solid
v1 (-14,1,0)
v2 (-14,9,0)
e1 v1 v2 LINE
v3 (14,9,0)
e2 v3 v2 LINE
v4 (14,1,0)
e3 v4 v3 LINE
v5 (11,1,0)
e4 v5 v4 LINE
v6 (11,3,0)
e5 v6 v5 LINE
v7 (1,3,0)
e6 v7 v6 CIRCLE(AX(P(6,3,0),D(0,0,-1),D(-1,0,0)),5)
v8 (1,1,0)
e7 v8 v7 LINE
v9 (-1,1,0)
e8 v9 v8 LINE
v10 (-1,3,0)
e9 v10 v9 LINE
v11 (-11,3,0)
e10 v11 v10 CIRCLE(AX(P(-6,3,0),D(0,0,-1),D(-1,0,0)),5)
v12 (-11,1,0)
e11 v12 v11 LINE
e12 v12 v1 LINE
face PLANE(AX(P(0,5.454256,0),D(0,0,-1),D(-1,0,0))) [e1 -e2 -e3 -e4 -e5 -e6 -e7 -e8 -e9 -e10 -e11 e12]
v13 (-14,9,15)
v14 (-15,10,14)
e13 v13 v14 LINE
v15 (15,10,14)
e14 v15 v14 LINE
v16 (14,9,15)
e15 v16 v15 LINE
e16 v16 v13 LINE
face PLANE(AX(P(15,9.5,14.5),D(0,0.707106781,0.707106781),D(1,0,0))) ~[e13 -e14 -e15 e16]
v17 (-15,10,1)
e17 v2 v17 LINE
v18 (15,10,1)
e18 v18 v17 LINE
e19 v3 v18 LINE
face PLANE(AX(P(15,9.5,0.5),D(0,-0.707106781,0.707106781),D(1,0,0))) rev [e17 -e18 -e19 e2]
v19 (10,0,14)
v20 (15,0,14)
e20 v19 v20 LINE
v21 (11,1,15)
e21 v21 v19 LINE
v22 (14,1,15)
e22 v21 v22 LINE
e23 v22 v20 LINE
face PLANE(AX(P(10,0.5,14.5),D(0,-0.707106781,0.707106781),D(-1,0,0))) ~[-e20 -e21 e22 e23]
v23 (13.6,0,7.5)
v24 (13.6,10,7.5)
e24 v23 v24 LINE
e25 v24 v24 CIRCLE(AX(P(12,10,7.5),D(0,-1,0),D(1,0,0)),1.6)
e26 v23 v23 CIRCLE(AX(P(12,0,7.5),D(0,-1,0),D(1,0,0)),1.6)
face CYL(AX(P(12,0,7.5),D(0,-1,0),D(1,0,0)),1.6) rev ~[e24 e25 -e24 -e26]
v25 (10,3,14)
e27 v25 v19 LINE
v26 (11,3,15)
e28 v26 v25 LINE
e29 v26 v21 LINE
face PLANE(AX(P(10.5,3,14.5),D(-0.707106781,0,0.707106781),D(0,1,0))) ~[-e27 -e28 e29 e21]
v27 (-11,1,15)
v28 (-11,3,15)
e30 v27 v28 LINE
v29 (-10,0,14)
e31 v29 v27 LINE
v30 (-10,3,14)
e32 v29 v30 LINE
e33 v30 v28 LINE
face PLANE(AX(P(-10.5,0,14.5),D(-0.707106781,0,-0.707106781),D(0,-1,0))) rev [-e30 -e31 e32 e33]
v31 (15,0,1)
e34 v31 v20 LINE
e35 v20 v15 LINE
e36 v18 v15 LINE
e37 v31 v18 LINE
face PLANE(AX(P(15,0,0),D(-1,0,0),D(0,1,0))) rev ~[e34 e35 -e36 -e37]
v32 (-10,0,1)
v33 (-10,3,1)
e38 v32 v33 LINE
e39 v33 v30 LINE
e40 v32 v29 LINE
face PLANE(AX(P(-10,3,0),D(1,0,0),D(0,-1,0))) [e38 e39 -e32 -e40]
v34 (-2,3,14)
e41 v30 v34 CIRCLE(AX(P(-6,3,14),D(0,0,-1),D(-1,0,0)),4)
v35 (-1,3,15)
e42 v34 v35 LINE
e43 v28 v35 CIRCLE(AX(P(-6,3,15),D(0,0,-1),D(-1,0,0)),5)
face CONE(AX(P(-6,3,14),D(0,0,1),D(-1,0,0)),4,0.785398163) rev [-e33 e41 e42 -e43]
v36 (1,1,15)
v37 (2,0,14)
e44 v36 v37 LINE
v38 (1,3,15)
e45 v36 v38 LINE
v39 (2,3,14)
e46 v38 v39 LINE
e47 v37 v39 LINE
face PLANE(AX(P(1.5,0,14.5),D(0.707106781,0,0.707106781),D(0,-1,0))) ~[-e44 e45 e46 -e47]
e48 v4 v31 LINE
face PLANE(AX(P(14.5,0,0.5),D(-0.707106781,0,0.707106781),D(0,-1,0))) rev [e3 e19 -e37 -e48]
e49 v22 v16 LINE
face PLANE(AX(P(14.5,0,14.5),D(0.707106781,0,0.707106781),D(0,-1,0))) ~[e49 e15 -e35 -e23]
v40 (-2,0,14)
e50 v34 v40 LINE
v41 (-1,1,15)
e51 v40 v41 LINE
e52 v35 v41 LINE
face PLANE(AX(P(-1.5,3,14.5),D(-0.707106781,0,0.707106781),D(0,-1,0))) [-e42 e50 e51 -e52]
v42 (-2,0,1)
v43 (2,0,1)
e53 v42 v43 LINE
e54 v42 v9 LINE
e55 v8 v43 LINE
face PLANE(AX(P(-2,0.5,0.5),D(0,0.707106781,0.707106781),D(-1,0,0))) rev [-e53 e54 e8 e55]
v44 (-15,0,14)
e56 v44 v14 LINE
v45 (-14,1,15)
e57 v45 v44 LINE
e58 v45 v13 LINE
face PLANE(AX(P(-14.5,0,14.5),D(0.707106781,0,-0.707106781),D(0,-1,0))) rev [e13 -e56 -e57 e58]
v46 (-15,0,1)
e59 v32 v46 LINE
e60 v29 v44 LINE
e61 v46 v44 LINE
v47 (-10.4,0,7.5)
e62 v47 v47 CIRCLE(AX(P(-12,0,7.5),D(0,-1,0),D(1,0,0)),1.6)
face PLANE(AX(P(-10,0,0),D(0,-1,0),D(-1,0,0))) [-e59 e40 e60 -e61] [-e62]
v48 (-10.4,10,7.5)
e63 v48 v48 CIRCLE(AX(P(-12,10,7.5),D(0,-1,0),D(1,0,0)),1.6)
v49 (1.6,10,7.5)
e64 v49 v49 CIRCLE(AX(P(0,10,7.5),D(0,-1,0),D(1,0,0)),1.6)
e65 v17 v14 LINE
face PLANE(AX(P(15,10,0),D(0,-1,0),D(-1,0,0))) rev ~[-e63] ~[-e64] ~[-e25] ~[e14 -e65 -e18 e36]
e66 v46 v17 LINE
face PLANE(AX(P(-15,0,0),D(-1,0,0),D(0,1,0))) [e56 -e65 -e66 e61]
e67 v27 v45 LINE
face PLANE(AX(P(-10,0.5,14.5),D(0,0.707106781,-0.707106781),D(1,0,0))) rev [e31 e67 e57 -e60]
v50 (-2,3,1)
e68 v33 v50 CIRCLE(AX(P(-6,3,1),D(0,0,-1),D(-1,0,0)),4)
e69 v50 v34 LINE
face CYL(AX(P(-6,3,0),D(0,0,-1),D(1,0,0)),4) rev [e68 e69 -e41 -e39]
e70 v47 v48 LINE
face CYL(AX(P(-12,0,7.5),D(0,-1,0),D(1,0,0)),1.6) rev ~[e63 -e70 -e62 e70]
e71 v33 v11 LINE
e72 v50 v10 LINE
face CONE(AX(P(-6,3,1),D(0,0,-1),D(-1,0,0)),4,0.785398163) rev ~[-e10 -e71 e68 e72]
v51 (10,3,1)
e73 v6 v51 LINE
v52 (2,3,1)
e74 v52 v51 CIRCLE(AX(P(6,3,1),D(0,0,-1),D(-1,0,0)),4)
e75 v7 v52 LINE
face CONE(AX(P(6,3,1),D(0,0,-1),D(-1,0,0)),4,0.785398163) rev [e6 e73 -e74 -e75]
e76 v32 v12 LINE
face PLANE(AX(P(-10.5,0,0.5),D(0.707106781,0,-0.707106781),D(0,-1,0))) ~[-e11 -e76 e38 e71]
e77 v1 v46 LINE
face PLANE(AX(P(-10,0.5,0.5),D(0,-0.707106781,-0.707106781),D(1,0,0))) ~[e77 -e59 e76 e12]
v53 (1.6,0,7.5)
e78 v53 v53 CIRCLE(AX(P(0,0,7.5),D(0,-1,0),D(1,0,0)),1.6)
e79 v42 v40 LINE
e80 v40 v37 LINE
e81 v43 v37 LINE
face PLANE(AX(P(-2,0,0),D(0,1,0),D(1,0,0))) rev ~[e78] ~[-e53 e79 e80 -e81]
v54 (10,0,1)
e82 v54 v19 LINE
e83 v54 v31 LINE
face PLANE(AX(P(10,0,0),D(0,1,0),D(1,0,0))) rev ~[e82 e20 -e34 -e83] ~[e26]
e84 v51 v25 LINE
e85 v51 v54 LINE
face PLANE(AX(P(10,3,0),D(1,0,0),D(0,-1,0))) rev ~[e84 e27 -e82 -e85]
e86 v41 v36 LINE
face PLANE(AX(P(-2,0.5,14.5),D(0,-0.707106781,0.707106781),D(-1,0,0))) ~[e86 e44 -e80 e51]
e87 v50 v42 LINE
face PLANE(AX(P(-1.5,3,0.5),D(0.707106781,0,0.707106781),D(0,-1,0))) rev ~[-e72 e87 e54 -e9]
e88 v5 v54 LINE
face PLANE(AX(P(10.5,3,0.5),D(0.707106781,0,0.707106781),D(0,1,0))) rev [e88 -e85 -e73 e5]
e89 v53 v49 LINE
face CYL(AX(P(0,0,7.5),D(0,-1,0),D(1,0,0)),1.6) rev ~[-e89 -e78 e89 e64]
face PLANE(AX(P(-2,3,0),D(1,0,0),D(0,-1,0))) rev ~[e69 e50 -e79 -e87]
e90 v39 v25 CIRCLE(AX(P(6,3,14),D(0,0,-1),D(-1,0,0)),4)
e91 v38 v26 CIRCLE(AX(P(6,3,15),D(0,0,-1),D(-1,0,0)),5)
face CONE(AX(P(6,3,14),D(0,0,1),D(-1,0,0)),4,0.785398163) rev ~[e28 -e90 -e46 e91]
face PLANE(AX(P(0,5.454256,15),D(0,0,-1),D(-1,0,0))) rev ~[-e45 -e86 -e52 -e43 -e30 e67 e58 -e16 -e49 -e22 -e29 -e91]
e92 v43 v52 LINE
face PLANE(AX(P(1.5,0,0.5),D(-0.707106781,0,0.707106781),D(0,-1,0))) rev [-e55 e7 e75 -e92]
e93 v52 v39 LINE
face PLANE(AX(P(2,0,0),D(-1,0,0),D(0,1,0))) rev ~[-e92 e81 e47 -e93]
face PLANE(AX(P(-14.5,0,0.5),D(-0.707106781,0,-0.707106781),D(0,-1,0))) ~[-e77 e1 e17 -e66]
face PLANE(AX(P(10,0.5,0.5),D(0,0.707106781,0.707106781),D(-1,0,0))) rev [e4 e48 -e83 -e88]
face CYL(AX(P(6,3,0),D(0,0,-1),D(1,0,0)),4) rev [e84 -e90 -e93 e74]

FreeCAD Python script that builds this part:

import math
import FreeCAD as App
import Part
import Sketcher
from FreeCAD import Vector


def edges_at(feature, points):
    """Names of the edges that pass closest to the given points."""
    edges = feature.Shape.Edges
    near = lambda p: min(range(len(edges)), key=lambda i: edges[i].distToShape(Part.Vertex(*p))[0])
    return sorted({f"Edge{near(p) + 1}" for p in points})

doc = App.newDocument("Part")
params = doc.addObject("Spreadsheet::Sheet", "Params")
for row, (alias, value) in enumerate([
    ("sketch1_radius", "4 mm"),
    ("sketch1_width", "4 mm"),
    ("sketch1_width2", "5 mm"),
    ("sketch1_height", "3 mm"),
    ("sketch1_height2", "10 mm"),
    ("pad1_length", "15 mm"),
    ("sketch2_diameter", "3.2 mm"),
    ("chamfer_size", "1 mm"),
], start=1):
    params.set(f"A{row}", alias)
    params.set(f"B{row}", "=" + value)
    params.setAlias(f"B{row}", alias)

body = doc.addObject("PartDesign::Body", "Body")

sketch1 = doc.addObject("Sketcher::SketchObject", "Sketch")
body.addObject(sketch1)
sketch1.AttachmentSupport = (doc.XY_Plane, [""])
sketch1.MapMode = "FlatFace"
sketch1.addGeometry(Part.ArcOfCircle(Part.Circle(Vector(-6, 3, 0), Vector(0, 0, 1), 4), math.radians(0), math.radians(180)), False)
sketch1.addGeometry(Part.LineSegment(Vector(-2, 3, 0), Vector(-2, 0, 0)), False)
sketch1.addGeometry(Part.LineSegment(Vector(-2, 0, 0), Vector(2, 0, 0)), False)
sketch1.addGeometry(Part.LineSegment(Vector(2, 0, 0), Vector(2, 3, 0)), False)
sketch1.addGeometry(Part.ArcOfCircle(Part.Circle(Vector(6, 3, 0), Vector(0, 0, 1), 4), math.radians(0), math.radians(180)), False)
sketch1.addGeometry(Part.LineSegment(Vector(10, 3, 0), Vector(10, 0, 0)), False)
sketch1.addGeometry(Part.LineSegment(Vector(10, 0, 0), Vector(15, 0, 0)), False)
sketch1.addGeometry(Part.LineSegment(Vector(15, 0, 0), Vector(15, 10, 0)), False)
sketch1.addGeometry(Part.LineSegment(Vector(15, 10, 0), Vector(-15, 10, 0)), False)
sketch1.addGeometry(Part.LineSegment(Vector(-15, 10, 0), Vector(-15, 0, 0)), False)
sketch1.addGeometry(Part.LineSegment(Vector(-15, 0, 0), Vector(-10, 0, 0)), False)
sketch1.addGeometry(Part.LineSegment(Vector(-10, 0, 0), Vector(-10, 3, 0)), False)
sketch1.addConstraint(Sketcher.Constraint("Tangent", 0, 1, 1, 1))
sketch1.addConstraint(Sketcher.Constraint("Coincident", 1, 2, 2, 1))
sketch1.addConstraint(Sketcher.Constraint("Coincident", 2, 2, 3, 1))
sketch1.addConstraint(Sketcher.Constraint("Tangent", 3, 2, 4, 2))
sketch1.addConstraint(Sketcher.Constraint("Tangent", 4, 1, 5, 1))
sketch1.addConstraint(Sketcher.Constraint("Coincident", 5, 2, 6, 1))
sketch1.addConstraint(Sketcher.Constraint("Coincident", 6, 2, 7, 1))
sketch1.addConstraint(Sketcher.Constraint("Coincident", 7, 2, 8, 1))
sketch1.addConstraint(Sketcher.Constraint("Coincident", 8, 2, 9, 1))
sketch1.addConstraint(Sketcher.Constraint("Coincident", 9, 2, 10, 1))
sketch1.addConstraint(Sketcher.Constraint("Coincident", 10, 2, 11, 1))
sketch1.addConstraint(Sketcher.Constraint("Tangent", 11, 2, 0, 2))
sketch1.addConstraint(Sketcher.Constraint("Vertical", 1))
sketch1.addConstraint(Sketcher.Constraint("Horizontal", 2))
sketch1.addConstraint(Sketcher.Constraint("Vertical", 3))
sketch1.addConstraint(Sketcher.Constraint("Vertical", 5))
sketch1.addConstraint(Sketcher.Constraint("Horizontal", 6))
sketch1.addConstraint(Sketcher.Constraint("Vertical", 7))
sketch1.addConstraint(Sketcher.Constraint("Horizontal", 8))
sketch1.addConstraint(Sketcher.Constraint("Vertical", 9))
sketch1.addConstraint(Sketcher.Constraint("Horizontal", 10))
sketch1.addConstraint(Sketcher.Constraint("Vertical", 11))
sketch1.addConstraint(Sketcher.Constraint("Equal", 0, 4))
sketch1.addConstraint(Sketcher.Constraint("Symmetric", 1, 2, 2, 2, -1, 1))
sketch1.addConstraint(Sketcher.Constraint("Symmetric", 6, 2, 9, 2, -1, 1))
sketch1.addConstraint(Sketcher.Constraint("PointOnObject", 5, 2, -1))
sketch1.addConstraint(Sketcher.Constraint("Horizontal", 0, 3, 4, 3))
sketch1.addConstraint(Sketcher.Constraint("Radius", 0, 4.0))
sketch1.addConstraint(Sketcher.Constraint("DistanceX", 2, 1, 2, 2, 4.0))
sketch1.addConstraint(Sketcher.Constraint("DistanceX", 6, 1, 6, 2, 5.0))
sketch1.addConstraint(Sketcher.Constraint("DistanceY", 1, 2, 1, 1, 3.0))
sketch1.addConstraint(Sketcher.Constraint("DistanceY", 7, 1, 7, 2, 10.0))
sketch1.setExpression("Constraints[27]", "Params.sketch1_radius")
sketch1.setExpression("Constraints[28]", "Params.sketch1_width")
sketch1.setExpression("Constraints[29]", "Params.sketch1_width2")
sketch1.setExpression("Constraints[30]", "Params.sketch1_height")
sketch1.setExpression("Constraints[31]", "Params.sketch1_height2")
pad1 = doc.addObject("PartDesign::Pad", "Pad")
body.addObject(pad1)
pad1.Profile = sketch1
pad1.setExpression("Length", "Params.pad1_length")

sketch2 = doc.addObject("Sketcher::SketchObject", "Sketch001")
body.addObject(sketch2)
sketch2.AttachmentSupport = (doc.XZ_Plane, [""])
sketch2.MapMode = "FlatFace"
sketch2.addGeometry(Part.Circle(Vector(0, 7.5, 0), Vector(0, 0, 1), 1.6), False)
sketch2.addGeometry(Part.Circle(Vector(-12, 7.5, 0), Vector(0, 0, 1), 1.6), False)
sketch2.addGeometry(Part.Circle(Vector(12, 7.5, 0), Vector(0, 0, 1), 1.6), False)
sketch2.addConstraint(Sketcher.Constraint("Equal", 0, 1))
sketch2.addConstraint(Sketcher.Constraint("Equal", 1, 2))
sketch2.addConstraint(Sketcher.Constraint("Symmetric", 1, 3, 2, 3, -2))
sketch2.addConstraint(Sketcher.Constraint("PointOnObject", 0, 3, -2))
sketch2.addConstraint(Sketcher.Constraint("Horizontal", 0, 3, 1, 3))
sketch2.addConstraint(Sketcher.Constraint("Diameter", 0, 3.2))
sketch2.addConstraint(Sketcher.Constraint("DistanceX", 1, 3, -1, 1, 12.0))
sketch2.addConstraint(Sketcher.Constraint("DistanceY", -1, 1, 0, 3, 7.5))
sketch2.setExpression("Constraints[5]", "Params.sketch2_diameter")
pocket1 = doc.addObject("PartDesign::Pocket", "Pocket")
body.addObject(pocket1)
pocket1.Profile = sketch2
pocket1.Type = "ThroughAll"
doc.recompute()

chamfer = doc.addObject("PartDesign::Chamfer", "Chamfer")
body.addObject(chamfer)
chamfer.Base = (pocket1, edges_at(pocket1, [
    (-2, 1.5, 15),
    (-6, 7, 15),
    (-10, 1.5, 15),
    (-12.5, 0, 15),
    (-15, 5, 15),
    (0, 10, 15),
    (15, 5, 15),
    (12.5, 0, 15),
    (10, 1.5, 15),
    (6, 7, 15),
    (2, 1.5, 15),
    (0, 0, 15),
    (-2, 1.5, 0),
    (-6, 7, 0),
    (-10, 1.5, 0),
    (-12.5, 0, 0),
    (-15, 5, 0),
    (0, 10, 0),
    (15, 5, 0),
    (12.5, 0, 0),
    (10, 1.5, 0),
    (6, 7, 0),
    (2, 1.5, 0),
    (0, 0, 0),
]))
chamfer.setExpression("Size", "Params.chamfer_size")

doc.recompute()
